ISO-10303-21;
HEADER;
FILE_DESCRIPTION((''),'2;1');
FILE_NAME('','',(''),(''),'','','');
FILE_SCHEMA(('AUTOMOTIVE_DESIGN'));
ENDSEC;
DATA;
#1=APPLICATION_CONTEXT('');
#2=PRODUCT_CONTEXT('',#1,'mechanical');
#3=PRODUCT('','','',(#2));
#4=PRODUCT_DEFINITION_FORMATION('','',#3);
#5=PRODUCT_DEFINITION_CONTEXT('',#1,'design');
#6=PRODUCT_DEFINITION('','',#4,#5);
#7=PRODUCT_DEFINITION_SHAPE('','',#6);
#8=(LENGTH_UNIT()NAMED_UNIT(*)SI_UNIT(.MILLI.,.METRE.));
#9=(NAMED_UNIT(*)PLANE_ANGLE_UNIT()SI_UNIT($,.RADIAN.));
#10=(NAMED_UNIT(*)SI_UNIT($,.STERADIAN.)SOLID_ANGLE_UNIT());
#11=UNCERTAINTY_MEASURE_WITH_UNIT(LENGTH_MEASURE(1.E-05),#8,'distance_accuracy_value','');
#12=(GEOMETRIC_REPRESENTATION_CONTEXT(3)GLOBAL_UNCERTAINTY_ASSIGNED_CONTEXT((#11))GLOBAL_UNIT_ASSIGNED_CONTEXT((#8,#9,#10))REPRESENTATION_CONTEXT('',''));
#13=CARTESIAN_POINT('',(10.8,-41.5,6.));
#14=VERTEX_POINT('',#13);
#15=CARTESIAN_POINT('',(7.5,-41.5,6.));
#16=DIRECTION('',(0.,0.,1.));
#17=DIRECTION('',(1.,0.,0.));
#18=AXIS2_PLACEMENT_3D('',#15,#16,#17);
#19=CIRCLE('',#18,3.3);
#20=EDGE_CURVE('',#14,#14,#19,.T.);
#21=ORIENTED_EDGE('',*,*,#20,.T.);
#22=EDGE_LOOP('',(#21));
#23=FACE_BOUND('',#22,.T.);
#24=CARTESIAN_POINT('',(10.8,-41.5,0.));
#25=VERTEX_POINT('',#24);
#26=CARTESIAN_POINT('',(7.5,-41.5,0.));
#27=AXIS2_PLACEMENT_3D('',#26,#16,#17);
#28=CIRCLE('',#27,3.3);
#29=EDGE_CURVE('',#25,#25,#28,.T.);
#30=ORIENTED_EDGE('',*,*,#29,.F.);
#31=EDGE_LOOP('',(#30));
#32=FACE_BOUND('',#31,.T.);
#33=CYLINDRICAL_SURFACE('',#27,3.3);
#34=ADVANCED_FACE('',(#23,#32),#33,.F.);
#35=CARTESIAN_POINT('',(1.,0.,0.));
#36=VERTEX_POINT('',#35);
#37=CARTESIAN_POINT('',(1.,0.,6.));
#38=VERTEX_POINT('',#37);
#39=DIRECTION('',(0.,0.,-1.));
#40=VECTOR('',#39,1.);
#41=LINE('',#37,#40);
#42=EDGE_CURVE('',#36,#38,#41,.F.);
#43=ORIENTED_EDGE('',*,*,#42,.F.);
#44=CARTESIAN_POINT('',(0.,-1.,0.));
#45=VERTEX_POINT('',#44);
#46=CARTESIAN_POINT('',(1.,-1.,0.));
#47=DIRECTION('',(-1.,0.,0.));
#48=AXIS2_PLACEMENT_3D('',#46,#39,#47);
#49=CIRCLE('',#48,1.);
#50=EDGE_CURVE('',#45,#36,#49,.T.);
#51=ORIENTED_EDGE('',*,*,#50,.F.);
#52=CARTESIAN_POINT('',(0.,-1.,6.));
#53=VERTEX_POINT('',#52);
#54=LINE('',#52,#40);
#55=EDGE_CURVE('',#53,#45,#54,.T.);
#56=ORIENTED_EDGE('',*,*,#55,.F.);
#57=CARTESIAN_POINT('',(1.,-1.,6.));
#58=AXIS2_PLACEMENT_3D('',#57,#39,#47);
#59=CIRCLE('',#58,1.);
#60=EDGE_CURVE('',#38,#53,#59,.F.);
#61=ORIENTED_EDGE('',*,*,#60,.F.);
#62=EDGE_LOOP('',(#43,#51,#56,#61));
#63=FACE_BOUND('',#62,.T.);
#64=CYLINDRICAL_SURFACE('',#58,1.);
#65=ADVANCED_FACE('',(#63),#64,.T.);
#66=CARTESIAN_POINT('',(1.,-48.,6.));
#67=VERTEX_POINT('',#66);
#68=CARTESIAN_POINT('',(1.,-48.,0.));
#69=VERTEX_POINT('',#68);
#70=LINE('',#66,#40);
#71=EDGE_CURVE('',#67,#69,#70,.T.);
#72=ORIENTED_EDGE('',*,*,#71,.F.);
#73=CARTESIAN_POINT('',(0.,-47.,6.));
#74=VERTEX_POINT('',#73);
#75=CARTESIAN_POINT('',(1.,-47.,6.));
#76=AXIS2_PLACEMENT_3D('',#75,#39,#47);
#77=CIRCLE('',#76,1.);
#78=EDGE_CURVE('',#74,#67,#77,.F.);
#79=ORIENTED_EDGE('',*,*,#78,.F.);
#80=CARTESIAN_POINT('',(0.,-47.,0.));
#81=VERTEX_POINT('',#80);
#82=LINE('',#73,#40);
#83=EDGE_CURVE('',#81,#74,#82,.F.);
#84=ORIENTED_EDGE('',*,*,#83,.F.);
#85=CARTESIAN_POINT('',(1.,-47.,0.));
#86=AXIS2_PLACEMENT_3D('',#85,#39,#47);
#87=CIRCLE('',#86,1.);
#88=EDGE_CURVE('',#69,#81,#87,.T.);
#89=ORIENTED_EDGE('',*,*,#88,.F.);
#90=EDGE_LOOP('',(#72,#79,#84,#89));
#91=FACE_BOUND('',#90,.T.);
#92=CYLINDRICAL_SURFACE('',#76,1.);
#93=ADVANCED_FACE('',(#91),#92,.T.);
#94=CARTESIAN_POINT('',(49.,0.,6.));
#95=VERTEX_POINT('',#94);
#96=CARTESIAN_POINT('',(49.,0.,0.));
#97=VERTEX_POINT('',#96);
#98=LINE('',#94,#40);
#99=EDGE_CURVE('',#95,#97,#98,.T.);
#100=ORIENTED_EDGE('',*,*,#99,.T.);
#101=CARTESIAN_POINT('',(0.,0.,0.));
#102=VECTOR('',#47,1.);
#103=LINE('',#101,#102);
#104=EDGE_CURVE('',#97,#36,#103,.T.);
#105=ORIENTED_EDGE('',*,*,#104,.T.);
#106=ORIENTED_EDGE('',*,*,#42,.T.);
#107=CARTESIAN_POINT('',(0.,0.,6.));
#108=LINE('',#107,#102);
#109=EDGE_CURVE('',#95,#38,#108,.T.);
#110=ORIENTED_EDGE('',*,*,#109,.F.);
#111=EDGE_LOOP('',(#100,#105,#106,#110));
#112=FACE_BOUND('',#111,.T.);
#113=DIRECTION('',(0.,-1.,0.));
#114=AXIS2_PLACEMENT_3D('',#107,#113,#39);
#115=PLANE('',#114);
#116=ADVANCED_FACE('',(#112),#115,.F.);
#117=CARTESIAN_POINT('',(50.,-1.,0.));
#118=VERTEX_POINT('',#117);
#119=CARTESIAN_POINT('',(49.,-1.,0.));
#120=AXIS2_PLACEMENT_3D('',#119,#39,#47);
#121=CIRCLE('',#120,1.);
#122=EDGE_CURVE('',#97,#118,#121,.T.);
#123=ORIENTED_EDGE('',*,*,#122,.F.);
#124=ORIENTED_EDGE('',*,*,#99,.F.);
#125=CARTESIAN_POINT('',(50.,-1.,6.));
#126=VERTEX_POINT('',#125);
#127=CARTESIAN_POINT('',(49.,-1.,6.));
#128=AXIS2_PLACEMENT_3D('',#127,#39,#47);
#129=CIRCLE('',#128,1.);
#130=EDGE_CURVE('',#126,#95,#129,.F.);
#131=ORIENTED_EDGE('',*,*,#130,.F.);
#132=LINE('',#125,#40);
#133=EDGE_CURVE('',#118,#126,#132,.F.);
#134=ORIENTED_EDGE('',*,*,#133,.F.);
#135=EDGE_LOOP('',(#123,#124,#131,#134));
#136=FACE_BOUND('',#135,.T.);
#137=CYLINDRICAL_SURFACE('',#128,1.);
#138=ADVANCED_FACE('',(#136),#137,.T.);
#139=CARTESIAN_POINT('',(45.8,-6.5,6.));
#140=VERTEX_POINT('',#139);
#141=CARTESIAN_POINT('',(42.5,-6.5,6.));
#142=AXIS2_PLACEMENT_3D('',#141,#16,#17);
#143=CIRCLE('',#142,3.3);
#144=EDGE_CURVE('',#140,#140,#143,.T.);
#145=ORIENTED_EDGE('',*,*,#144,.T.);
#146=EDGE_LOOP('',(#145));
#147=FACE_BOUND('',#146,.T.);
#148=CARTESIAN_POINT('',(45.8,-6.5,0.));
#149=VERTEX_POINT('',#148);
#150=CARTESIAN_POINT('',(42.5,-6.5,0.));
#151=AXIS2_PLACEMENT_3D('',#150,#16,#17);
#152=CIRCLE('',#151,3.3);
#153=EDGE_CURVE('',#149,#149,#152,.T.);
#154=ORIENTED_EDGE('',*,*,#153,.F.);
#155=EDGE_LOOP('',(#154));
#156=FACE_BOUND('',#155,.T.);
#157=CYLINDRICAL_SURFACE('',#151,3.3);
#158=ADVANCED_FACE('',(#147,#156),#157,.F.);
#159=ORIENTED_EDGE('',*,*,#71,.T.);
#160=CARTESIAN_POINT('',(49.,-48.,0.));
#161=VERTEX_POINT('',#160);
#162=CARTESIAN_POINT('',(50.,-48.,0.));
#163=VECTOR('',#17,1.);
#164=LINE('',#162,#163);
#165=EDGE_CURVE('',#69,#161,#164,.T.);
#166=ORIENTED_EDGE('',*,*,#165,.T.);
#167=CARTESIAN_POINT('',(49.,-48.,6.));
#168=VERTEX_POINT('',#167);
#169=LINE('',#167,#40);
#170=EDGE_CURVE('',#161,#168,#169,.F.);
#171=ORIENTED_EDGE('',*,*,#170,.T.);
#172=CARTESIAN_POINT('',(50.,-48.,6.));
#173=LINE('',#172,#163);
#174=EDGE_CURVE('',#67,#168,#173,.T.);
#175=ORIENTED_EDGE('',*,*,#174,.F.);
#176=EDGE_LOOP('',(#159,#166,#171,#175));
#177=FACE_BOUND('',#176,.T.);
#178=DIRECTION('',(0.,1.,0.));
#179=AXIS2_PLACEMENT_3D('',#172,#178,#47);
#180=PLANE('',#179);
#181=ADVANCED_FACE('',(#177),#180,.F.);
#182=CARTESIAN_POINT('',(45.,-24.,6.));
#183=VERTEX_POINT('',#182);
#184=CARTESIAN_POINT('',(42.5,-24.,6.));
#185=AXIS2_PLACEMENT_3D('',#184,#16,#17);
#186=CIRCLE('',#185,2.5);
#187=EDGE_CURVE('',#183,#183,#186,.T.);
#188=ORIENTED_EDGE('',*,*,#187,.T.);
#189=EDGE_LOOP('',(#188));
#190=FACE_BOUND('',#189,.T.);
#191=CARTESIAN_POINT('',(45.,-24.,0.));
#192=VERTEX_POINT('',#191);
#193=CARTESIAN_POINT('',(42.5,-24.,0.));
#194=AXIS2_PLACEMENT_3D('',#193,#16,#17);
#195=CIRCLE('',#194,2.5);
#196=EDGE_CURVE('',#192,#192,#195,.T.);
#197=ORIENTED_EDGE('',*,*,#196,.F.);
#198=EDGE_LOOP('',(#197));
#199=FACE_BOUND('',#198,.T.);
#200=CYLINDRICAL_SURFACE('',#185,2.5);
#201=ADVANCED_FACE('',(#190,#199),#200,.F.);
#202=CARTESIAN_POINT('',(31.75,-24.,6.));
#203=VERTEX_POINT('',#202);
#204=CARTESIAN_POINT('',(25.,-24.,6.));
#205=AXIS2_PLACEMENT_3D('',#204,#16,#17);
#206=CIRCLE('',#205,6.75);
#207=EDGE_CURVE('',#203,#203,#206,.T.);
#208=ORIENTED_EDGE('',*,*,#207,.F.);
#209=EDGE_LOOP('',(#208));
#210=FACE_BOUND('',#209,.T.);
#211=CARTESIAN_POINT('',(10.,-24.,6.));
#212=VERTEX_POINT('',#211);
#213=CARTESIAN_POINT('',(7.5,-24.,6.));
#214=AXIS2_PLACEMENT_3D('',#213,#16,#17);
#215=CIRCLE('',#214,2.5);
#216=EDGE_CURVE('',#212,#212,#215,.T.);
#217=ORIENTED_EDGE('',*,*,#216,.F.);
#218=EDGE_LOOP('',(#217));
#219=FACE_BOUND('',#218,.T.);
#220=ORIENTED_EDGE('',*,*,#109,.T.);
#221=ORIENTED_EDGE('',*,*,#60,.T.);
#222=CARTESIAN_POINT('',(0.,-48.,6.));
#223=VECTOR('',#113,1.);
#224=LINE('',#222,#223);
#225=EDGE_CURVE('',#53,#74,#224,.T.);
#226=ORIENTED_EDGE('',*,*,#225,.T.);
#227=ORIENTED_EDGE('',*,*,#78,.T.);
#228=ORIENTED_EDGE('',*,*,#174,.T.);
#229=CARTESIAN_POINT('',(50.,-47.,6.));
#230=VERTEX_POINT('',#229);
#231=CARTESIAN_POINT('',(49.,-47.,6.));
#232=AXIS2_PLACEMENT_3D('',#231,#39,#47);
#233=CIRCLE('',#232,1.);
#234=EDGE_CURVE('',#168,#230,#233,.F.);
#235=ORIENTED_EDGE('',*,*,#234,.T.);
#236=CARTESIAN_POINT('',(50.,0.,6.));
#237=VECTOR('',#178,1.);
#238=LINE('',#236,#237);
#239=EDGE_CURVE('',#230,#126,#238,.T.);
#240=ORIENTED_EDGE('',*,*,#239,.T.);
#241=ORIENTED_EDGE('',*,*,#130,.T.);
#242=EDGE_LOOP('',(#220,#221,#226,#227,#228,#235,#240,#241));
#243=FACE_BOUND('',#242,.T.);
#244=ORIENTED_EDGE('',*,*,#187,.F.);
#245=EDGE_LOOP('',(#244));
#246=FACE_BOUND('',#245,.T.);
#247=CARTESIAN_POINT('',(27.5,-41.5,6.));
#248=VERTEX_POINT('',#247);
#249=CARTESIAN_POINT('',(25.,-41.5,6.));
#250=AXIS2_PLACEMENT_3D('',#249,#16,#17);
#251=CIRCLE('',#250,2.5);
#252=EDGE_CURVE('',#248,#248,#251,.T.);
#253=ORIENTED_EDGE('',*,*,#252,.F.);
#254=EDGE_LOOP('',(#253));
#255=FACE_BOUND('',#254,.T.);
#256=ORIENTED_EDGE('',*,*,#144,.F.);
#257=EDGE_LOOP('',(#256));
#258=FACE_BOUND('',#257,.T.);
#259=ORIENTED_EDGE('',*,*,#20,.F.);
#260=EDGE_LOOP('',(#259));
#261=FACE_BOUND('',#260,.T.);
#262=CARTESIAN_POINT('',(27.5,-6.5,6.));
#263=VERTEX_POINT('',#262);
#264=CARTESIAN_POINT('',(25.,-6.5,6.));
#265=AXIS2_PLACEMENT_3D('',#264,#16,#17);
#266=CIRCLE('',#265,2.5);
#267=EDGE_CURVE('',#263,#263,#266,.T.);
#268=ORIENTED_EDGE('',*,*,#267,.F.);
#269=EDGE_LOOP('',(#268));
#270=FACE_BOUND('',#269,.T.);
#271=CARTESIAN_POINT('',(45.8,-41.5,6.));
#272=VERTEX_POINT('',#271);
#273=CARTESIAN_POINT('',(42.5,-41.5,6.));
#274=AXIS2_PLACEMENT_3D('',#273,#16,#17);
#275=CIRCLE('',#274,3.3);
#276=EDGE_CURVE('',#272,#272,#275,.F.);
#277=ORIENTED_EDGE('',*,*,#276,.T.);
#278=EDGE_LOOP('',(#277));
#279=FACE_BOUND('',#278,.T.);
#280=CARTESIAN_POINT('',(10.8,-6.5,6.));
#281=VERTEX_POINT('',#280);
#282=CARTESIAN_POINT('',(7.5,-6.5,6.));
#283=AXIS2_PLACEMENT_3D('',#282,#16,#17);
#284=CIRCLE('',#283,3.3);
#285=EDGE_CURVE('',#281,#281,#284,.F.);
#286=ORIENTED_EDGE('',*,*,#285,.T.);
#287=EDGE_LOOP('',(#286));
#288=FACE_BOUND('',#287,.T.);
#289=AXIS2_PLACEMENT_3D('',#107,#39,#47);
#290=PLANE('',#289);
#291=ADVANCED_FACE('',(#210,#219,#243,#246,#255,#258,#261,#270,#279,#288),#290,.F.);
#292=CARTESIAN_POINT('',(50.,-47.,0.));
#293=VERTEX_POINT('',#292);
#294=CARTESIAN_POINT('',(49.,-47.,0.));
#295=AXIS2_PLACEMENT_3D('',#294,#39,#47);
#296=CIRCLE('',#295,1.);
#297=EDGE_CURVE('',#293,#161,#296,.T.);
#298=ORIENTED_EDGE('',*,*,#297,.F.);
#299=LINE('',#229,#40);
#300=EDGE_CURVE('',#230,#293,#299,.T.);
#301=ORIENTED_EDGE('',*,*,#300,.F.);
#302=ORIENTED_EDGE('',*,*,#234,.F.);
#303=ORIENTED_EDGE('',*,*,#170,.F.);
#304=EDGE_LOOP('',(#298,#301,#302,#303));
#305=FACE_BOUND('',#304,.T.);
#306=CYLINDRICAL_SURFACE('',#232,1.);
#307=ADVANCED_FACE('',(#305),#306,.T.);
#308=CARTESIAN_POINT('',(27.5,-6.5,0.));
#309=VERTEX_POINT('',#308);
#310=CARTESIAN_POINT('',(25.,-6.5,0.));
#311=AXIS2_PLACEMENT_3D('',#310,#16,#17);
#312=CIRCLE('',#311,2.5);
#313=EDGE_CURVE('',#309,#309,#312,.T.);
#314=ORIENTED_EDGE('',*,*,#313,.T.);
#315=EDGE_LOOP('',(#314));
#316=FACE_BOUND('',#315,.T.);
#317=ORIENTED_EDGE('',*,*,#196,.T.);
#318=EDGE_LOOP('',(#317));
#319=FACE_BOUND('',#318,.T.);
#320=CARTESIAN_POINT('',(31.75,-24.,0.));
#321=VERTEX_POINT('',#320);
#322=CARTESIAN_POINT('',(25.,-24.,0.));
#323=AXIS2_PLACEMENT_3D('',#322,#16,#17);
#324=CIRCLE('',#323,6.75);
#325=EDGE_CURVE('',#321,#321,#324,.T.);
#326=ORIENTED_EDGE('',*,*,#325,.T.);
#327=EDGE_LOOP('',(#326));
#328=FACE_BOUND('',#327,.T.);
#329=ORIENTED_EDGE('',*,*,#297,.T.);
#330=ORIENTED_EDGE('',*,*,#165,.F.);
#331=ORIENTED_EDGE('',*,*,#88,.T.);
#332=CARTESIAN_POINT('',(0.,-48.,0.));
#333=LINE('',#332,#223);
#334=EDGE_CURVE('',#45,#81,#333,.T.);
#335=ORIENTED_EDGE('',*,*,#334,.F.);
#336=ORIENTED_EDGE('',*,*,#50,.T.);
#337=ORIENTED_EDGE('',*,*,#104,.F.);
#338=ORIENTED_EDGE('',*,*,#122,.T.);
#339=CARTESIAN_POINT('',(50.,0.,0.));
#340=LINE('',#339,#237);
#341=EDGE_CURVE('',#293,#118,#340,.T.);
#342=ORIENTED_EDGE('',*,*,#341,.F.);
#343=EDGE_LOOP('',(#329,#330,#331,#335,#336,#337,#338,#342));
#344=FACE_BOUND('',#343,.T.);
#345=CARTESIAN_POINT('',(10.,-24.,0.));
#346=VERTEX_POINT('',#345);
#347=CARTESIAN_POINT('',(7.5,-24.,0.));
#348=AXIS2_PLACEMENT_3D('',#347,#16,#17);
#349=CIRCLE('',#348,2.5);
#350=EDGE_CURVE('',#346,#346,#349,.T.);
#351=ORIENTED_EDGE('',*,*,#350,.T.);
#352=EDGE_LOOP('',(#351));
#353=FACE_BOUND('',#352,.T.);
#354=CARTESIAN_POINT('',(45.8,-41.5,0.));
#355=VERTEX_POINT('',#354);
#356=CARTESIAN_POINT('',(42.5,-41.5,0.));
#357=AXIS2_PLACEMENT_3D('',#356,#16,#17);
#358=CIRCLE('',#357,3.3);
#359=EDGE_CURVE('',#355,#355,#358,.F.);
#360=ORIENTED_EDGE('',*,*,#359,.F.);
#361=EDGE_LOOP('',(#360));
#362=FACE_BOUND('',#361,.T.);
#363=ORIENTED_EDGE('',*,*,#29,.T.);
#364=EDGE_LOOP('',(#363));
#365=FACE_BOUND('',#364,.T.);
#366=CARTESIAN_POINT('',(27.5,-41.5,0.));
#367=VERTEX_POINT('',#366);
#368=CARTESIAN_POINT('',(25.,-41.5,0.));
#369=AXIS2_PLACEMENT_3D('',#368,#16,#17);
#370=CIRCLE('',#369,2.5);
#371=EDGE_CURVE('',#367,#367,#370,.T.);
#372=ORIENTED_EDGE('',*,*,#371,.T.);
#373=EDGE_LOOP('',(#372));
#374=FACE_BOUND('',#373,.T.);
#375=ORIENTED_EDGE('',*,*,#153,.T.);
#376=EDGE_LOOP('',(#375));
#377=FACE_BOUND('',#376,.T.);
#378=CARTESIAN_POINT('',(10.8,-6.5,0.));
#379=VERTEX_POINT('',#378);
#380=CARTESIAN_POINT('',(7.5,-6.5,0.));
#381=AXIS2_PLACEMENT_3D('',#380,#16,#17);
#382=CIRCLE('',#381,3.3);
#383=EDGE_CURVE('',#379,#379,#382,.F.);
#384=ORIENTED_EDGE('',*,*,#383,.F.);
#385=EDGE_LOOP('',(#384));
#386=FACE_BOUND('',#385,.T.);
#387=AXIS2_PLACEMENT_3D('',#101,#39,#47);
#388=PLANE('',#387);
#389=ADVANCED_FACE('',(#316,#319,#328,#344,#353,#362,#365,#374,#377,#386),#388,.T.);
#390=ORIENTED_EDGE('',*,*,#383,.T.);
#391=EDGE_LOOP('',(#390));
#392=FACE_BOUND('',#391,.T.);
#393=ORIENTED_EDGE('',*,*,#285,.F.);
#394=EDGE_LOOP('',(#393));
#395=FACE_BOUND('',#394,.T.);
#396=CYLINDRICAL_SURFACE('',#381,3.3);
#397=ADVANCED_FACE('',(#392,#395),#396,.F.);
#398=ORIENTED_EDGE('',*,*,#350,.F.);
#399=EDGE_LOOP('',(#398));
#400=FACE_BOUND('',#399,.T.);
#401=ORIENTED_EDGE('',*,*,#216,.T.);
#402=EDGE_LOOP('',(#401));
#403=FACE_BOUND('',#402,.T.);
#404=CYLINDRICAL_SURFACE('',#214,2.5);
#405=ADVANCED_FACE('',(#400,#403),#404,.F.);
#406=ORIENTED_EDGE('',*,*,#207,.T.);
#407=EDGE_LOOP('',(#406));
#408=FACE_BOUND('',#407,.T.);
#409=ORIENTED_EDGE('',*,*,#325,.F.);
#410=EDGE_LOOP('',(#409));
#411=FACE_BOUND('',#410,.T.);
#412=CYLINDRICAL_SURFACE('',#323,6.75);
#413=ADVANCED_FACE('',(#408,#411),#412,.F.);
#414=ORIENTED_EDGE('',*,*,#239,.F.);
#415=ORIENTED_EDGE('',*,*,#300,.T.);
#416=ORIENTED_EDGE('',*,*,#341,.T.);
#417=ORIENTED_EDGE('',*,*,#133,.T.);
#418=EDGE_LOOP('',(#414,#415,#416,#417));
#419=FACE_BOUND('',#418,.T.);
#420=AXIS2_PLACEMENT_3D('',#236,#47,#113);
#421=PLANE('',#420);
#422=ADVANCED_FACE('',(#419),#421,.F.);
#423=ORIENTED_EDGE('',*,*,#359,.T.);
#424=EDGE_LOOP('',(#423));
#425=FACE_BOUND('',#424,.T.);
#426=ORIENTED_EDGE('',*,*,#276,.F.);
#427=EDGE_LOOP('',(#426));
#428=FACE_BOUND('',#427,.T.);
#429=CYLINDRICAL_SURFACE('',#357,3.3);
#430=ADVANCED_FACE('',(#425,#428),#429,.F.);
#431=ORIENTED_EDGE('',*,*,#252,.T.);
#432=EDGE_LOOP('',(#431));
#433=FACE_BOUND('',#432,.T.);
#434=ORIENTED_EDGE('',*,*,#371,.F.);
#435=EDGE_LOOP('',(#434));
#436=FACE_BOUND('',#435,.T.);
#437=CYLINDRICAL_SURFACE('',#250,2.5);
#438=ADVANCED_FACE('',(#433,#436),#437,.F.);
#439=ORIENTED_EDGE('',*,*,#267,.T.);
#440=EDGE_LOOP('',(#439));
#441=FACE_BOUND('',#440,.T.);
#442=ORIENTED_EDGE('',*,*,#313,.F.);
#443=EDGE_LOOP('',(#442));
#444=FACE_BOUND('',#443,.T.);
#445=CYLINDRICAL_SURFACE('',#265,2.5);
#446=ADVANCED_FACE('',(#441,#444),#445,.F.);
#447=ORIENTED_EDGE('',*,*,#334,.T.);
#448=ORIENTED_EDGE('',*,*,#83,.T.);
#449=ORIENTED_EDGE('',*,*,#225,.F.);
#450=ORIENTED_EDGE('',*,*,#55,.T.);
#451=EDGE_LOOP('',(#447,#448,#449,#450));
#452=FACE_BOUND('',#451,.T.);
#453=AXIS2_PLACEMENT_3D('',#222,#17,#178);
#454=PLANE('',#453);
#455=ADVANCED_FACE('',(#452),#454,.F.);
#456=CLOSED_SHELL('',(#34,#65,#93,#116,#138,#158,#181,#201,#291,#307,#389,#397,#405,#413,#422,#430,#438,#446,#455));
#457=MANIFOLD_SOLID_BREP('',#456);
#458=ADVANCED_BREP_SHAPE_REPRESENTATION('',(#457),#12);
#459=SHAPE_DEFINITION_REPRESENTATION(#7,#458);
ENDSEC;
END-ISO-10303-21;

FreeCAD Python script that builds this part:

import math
import FreeCAD as App
import Part
import Sketcher

V = App.Vector
Q = App.Units.Quantity


def edges_at(feature, points):
    """Names of the edges that pass closest to the given points."""
    edges = feature.Shape.Edges
    near = lambda p: min(range(len(edges)), key=lambda i: edges[i].distToShape(Part.Vertex(*p))[0])
    return sorted({f"Edge{near(p) + 1}" for p in points})


def add_polygon(sketch, points):
    """Adds a closed chain of lines whose ends are joined by coincident constraints."""
    first, n = sketch.GeometryCount, len(points)
    for a, b in zip(points, points[1:] + points[:1]):
        sketch.addGeometry(Part.LineSegment(App.Vector(*a, 0), App.Vector(*b, 0)), False)
    for i in range(n):
        sketch.addConstraint(Sketcher.Constraint("Coincident", first + i, 2, first + (i + 1) % n, 1))

doc = App.newDocument("Part")
body = doc.addObject("PartDesign::Body", "Body")

sketch1 = body.newObject("Sketcher::SketchObject", "Sketch")
sketch1.AttachmentSupport = (doc.getObject("XY_Plane"), [""])
sketch1.MapMode = "FlatFace"
add_polygon(sketch1, [(0, 0), (0, -48), (50, -48), (50, 0)])
sketch1.addConstraint([
    Sketcher.Constraint("Vertical", 0),
    Sketcher.Constraint("Horizontal", 1),
    Sketcher.Constraint("Vertical", 2),
    Sketcher.Constraint("Horizontal", 3),
    Sketcher.Constraint("Coincident", 3, 2, -1, 1),
    Sketcher.Constraint("DistanceX", 1, 1, 1, 2, Q("50 mm")),
    Sketcher.Constraint("DistanceY", 0, 2, 0, 1, Q("48 mm")),
])
pad1 = body.newObject("PartDesign::Pad", "Pad")
pad1.Profile = sketch1
pad1.Length = 6
doc.recompute()

fillet = body.newObject("PartDesign::Fillet", "Fillet")
fillet.Base = (pad1, edges_at(pad1, [
    (0, 0, 3),
    (50, 0, 3),
    (50, -48, 3),
    (0, -48, 3),
]))
fillet.Radius = 1

sketch2 = body.newObject("Sketcher::SketchObject", "Sketch001")
sketch2.AttachmentSupport = (doc.getObject("XY_Plane"), [""])
sketch2.MapMode = "FlatFace"
sketch2.AttachmentOffset = App.Placement(V(0, 0, 6), App.Rotation())
sketch2.addGeometry([
    Part.Circle(V(7.5, -6.5, 0), V(0, 0, 1), 3.3),
    Part.Circle(V(42.5, -6.5, 0), V(0, 0, 1), 3.3),
    Part.Circle(V(42.5, -41.5, 0), V(0, 0, 1), 3.3),
    Part.Circle(V(7.5, -41.5, 0), V(0, 0, 1), 3.3),
    Part.ArcOfCircle(Part.Circle(V(25, -24, 0), V(0, 0, 1), 6.8), math.radians(0), math.radians(90)),
    Part.ArcOfCircle(Part.Circle(V(25, -24, 0), V(0, 0, 1), 6.8), math.radians(90), math.radians(180)),
    Part.ArcOfCircle(Part.Circle(V(25, -24, 0), V(0, 0, 1), 6.8), math.radians(180), math.radians(270)),
    Part.ArcOfCircle(Part.Circle(V(25, -24, 0), V(0, 0, 1), 6.8), math.radians(-90), math.radians(0)),
], False)
sketch2.addConstraint([
    Sketcher.Constraint("Tangent", 4, 2, 5, 1),
    Sketcher.Constraint("Tangent", 5, 2, 6, 1),
    Sketcher.Constraint("Tangent", 6, 2, 7, 1),
    Sketcher.Constraint("Tangent", 7, 2, 4, 1),
    Sketcher.Constraint("Equal", 0, 1),
    Sketcher.Constraint("Equal", 1, 2),
    Sketcher.Constraint("Equal", 2, 3),
    Sketcher.Constraint("Equal", 4, 5),
    Sketcher.Constraint("Horizontal", 0, 3, 1, 3),
    Sketcher.Constraint("Horizontal", 2, 3, 3, 3),
    Sketcher.Constraint("Horizontal", 7, 3, 5, 2),
    Sketcher.Constraint("Horizontal", 5, 2, 7, 2),
    Sketcher.Constraint("Vertical", 1, 3, 2, 3),
    Sketcher.Constraint("Vertical", 0, 3, 3, 3),
    Sketcher.Constraint("Vertical", 7, 3, 4, 2),
    Sketcher.Constraint("Vertical", 4, 2, 6, 2),
    Sketcher.Constraint("Diameter", 0, Q("6.6 mm")),
    Sketcher.Constraint("Radius", 4, Q("6.75 mm")),
    Sketcher.Constraint("DistanceX", -1, 1, 4, 3, Q("25 mm")),
    Sketcher.Constraint("DistanceY", 4, 3, -1, 1, Q("24 mm")),
    Sketcher.Constraint("DistanceX", 0, 3, 1, 3, Q("35 mm")),
    Sketcher.Constraint("DistanceY", 2, 3, 1, 3, Q("35 mm")),
    Sketcher.Constraint("DistanceX", -1, 1, 0, 3, Q("7.5 mm")),
    Sketcher.Constraint("DistanceY", 0, 3, -1, 1, Q("6.5 mm")),
])
pocket1 = body.newObject("PartDesign::Pocket", "Pocket")
pocket1.Profile = sketch2
pocket1.Type = "ThroughAll"

sketch3 = body.newObject("Sketcher::SketchObject", "Sketch002")
sketch3.AttachmentSupport = (doc.getObject("XY_Plane"), [""])
sketch3.MapMode = "FlatFace"
sketch3.AttachmentOffset = App.Placement(V(0, 0, 6), App.Rotation())
sketch3.addGeometry([
    Part.Circle(V(25, -6.5, 0), V(0, 0, 1), 2.5),
    Part.Circle(V(42.5, -24, 0), V(0, 0, 1), 2.5),
    Part.Circle(V(25, -41.5, 0), V(0, 0, 1), 2.5),
    Part.Circle(V(7.5, -24, 0), V(0, 0, 1), 2.5),
], False)
sketch3.addConstraint([
    Sketcher.Constraint("Equal", 0, 1),
    Sketcher.Constraint("Equal", 1, 2),
    Sketcher.Constraint("Equal", 2, 3),
    Sketcher.Constraint("Horizontal", 1, 3, 3, 3),
    Sketcher.Constraint("Vertical", 0, 3, 2, 3),
    Sketcher.Constraint("Diameter", 0, Q("5 mm")),
    Sketcher.Constraint("DistanceX", -1, 1, 0, 3, Q("25 mm")),
    Sketcher.Constraint("DistanceY", 1, 3, -1, 1, Q("24 mm")),
    Sketcher.Constraint("DistanceY", 2, 3, 0, 3, Q("35 mm")),
    Sketcher.Constraint("DistanceX", 3, 3, 1, 3, Q("35 mm")),
    Sketcher.Constraint("DistanceY", 0, 3, -1, 1, Q("6.5 mm")),
    Sketcher.Constraint("DistanceX", -1, 1, 1, 3, Q("42.5 mm")),
])
doc.recompute()
hole = body.newObject("PartDesign::Hole", "Hole")
hole.Profile = sketch3
hole.ThreadType = "None"
hole.Diameter = 5
hole.DepthType = "ThroughAll"

doc.recompute()
